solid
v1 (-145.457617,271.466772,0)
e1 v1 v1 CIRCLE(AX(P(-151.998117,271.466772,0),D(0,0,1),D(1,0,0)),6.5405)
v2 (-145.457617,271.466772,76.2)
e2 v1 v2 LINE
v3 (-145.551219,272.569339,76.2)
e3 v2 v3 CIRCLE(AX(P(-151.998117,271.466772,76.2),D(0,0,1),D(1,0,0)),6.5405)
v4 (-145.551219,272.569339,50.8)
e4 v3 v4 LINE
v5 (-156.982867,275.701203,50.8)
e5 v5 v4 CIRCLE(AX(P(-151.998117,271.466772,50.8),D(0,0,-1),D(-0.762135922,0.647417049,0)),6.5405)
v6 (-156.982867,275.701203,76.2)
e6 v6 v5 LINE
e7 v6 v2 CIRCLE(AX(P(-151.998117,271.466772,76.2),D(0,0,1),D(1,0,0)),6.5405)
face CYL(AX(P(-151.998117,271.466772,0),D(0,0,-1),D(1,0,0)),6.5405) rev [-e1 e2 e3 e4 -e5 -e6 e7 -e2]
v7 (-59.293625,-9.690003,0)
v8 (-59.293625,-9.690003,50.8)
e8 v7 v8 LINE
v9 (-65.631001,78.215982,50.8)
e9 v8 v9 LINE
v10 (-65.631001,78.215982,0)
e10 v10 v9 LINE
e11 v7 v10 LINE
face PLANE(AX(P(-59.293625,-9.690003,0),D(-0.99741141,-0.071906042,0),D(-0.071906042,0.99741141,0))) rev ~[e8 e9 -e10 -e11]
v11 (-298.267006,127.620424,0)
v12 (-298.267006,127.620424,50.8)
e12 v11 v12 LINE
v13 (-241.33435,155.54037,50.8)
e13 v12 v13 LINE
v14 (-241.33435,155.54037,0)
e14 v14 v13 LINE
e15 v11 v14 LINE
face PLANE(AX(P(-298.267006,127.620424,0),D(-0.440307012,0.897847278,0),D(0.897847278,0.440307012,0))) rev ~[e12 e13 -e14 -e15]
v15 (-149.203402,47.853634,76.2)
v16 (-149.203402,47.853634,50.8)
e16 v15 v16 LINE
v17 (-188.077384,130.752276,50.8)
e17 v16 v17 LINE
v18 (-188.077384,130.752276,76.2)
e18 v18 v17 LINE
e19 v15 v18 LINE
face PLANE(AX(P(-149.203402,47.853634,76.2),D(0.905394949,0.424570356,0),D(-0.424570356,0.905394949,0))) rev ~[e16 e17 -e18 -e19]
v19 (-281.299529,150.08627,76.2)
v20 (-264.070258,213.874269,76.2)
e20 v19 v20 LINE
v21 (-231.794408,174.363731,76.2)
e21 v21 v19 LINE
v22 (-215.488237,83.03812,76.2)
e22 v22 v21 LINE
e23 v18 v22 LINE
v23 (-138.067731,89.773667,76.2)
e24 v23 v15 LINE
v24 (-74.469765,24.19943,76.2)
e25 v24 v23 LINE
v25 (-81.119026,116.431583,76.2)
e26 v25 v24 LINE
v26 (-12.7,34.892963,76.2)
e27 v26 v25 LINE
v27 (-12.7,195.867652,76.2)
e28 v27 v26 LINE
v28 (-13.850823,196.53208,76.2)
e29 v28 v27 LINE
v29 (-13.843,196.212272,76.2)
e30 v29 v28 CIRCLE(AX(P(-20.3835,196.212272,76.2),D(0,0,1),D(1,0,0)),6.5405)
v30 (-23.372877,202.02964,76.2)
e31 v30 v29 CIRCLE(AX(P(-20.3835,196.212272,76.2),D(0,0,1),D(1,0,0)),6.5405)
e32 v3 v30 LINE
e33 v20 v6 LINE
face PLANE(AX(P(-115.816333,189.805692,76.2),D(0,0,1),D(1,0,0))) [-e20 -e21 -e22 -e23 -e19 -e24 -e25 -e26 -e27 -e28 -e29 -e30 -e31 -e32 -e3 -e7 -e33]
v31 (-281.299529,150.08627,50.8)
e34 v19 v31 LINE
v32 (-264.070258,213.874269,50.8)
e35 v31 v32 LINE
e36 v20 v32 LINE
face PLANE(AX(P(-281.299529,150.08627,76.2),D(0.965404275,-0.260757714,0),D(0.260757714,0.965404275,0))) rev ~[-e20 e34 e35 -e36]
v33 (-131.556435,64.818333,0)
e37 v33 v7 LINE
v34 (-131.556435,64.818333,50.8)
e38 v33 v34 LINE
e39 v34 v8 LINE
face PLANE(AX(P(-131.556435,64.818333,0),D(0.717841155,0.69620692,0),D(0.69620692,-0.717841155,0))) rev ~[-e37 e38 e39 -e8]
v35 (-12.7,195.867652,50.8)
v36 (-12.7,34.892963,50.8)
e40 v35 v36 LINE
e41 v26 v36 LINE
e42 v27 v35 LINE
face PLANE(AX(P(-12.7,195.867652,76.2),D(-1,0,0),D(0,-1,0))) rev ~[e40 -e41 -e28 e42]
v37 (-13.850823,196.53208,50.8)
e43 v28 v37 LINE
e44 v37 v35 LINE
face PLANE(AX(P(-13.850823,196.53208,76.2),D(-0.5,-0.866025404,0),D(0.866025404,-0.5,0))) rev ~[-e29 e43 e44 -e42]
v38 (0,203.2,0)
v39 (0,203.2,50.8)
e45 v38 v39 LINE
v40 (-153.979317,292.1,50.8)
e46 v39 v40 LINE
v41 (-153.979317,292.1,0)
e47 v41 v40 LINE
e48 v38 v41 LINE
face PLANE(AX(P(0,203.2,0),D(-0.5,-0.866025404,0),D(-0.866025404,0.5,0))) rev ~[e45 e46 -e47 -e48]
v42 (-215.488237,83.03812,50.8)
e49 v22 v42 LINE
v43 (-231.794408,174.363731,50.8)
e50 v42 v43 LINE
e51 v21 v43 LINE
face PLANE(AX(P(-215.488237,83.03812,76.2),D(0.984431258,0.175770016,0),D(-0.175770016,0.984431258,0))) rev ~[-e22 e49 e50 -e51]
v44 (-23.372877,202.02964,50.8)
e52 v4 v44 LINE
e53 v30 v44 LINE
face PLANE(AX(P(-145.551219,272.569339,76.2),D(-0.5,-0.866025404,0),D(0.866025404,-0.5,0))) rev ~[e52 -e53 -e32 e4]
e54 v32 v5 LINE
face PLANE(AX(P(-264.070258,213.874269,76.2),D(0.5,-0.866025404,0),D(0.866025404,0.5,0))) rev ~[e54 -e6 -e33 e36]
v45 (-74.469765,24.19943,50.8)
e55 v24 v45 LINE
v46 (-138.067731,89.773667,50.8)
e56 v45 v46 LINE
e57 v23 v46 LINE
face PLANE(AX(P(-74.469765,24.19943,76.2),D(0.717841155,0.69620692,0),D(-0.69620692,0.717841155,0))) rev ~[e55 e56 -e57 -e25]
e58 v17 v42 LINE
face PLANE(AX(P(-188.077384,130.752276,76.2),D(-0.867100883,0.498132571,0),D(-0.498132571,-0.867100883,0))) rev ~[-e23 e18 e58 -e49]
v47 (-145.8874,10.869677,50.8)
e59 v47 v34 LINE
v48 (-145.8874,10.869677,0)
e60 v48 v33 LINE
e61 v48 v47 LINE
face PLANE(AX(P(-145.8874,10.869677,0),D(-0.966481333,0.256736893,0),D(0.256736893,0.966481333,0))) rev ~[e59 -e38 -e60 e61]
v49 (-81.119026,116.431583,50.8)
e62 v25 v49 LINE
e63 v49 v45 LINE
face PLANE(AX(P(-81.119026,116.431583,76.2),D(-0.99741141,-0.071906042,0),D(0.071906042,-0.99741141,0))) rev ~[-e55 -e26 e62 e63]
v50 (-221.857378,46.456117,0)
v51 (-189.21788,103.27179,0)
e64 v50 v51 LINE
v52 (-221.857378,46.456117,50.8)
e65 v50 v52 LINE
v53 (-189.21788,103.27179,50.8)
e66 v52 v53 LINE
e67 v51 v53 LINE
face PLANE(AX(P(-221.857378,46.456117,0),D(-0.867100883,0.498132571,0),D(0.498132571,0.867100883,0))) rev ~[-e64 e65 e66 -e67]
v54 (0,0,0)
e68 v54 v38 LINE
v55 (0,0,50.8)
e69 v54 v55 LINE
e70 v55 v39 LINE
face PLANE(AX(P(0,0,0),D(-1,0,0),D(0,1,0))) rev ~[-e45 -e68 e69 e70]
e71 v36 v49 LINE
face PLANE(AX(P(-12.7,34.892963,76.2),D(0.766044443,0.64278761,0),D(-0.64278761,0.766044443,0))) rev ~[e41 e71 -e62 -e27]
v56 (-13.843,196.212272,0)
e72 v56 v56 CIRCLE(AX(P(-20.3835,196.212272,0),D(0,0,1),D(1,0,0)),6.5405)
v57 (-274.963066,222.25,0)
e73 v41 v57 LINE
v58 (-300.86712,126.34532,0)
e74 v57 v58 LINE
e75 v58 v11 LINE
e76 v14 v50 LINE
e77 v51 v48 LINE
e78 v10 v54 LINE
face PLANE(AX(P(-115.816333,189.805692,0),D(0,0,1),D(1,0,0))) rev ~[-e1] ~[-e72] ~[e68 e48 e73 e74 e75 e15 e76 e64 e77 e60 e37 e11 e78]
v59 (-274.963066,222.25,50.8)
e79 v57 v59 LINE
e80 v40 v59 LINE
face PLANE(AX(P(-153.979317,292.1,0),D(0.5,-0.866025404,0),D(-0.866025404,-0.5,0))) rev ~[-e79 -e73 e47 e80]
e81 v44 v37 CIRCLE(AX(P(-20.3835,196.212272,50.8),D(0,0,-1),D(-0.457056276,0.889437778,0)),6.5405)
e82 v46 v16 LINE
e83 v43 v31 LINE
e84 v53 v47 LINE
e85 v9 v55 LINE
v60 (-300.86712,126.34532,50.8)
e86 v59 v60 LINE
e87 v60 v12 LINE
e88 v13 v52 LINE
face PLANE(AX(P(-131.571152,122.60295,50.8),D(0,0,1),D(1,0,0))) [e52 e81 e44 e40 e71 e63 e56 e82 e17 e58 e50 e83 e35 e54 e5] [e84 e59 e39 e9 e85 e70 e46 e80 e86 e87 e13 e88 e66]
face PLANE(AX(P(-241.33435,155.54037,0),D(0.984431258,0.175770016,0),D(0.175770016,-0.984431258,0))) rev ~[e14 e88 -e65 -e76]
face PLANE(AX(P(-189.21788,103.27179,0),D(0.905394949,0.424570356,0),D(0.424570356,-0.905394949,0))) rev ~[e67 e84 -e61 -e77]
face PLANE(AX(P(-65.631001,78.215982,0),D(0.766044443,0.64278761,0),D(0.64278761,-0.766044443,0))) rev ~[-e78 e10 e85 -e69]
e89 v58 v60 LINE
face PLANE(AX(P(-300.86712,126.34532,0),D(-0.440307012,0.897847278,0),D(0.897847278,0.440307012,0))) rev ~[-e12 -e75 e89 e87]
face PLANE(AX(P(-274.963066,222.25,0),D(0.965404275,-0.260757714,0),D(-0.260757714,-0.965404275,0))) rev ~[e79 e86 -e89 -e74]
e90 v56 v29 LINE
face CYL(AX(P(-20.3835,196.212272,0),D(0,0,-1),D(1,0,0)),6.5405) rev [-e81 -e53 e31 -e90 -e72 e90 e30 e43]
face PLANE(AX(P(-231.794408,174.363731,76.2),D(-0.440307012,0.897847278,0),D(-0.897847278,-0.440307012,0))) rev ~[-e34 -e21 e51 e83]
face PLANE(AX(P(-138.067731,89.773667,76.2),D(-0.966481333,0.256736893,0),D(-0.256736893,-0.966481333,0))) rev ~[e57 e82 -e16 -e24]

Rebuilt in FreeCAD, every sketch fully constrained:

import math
import FreeCAD as App
import Part
import Sketcher

V = App.Vector
Q = App.Units.Quantity


def add_polygon(sketch, points):
    """Adds a closed chain of lines whose ends are joined by coincident constraints."""
    first, n = sketch.GeometryCount, len(points)
    for a, b in zip(points, points[1:] + points[:1]):
        sketch.addGeometry(Part.LineSegment(App.Vector(*a, 0), App.Vector(*b, 0)), False)
    for i in range(n):
        sketch.addConstraint(Sketcher.Constraint("Coincident", first + i, 2, first + (i + 1) % n, 1))

doc = App.newDocument("Part")
body = doc.addObject("PartDesign::Body", "Body")

# Sketch on XY plane
sketch1 = body.newObject("Sketcher::SketchObject", "Sketch")
sketch1.AttachmentSupport = (doc.getObject("XY_Plane"), [""])
sketch1.MapMode = "FlatFace"
add_polygon(sketch1, [(0, 203.2), (-154, 292.1), (-275, 222.2), (-300.9, 126.3), (-298.3, 127.6), (-241.3, 155.5), (-221.9, 46.5), (-189.2, 103.3), (-145.9, 10.9), (-131.6, 64.8), (-59.3, -9.7), (-65.6, 78.2), (0, 0)])  # lines 0-12
sketch1.addGeometry(Part.Circle(V(-20.4, 196.2, 0), V(0, 0, 1), 6.5), False)  # 13
sketch1.addGeometry(Part.Circle(V(-152, 271.5, 0), V(0, 0, 1), 6.5), False)  # 14
sketch1.addConstraint(Sketcher.Constraint("Vertical", 12))
sketch1.addConstraint(Sketcher.Constraint("Coincident", 11, 2, -1, 1))
sketch1.addConstraint(Sketcher.Constraint("Equal", 13, 14))
sketch1.addConstraint(Sketcher.Constraint("Parallel", 3, 4))
sketch1.addConstraint(Sketcher.Constraint("DistanceY", 12, 1, 12, 2, Q("8 in")))
sketch1.addConstraint(Sketcher.Constraint("Distance", 0, Q("7 in")))
sketch1.addConstraint(Sketcher.Constraint("Diameter", 13, Q("0.515 in")))
sketch1.addConstraint(Sketcher.Constraint("Angle", 0, Q("150 deg")))
sketch1.addConstraint(Sketcher.Constraint("Angle", 1, Q("-150 deg")))
sketch1.addConstraint(Sketcher.Constraint("Angle", 11, Q("-50 deg")))
sketch1.addConstraint(Sketcher.Constraint("Distance", 1, Q("5.5 in")))
sketch1.addConstraint(Sketcher.Constraint("DistanceX", 0, 2, 14, 3, Q("0.078 in")))
sketch1.addConstraint(Sketcher.Constraint("DistanceX", 13, 3, -1, 1, Q("0.8025 in")))
sketch1.addConstraint(Sketcher.Constraint("DistanceX", 7, 2, -1, 1, 145.8874))
sketch1.addConstraint(Sketcher.Constraint("DistanceX", 10, 2, -1, 1, 65.631001))
sketch1.addConstraint(Sketcher.Constraint("DistanceY", 13, 3, 14, 3, 75.2545))
sketch1.addConstraint(Sketcher.Constraint("DistanceY", 4, 2, 14, 3, 115.926401))
sketch1.addConstraint(Sketcher.Constraint("Distance", 2, 99.34147))
sketch1.addConstraint(Sketcher.Constraint("Distance", 9, 103.795019))
sketch1.addConstraint(Sketcher.Constraint("DistanceY", -1, 1, 13, 3, 196.212272))
sketch1.addConstraint(Sketcher.Constraint("DistanceX", 2, 2, -1, 1, 300.86712))
sketch1.addConstraint(Sketcher.Constraint("DistanceX", 4, 2, -1, 1, 241.33435))
sketch1.addConstraint(Sketcher.Constraint("DistanceX", 6, 2, -1, 1, 189.21788))
sketch1.addConstraint(Sketcher.Constraint("DistanceY", -1, 1, 6, 2, 103.27179))
sketch1.addConstraint(Sketcher.Constraint("DistanceX", 3, 2, 1, 2, 23.30394))
sketch1.addConstraint(Sketcher.Constraint("DistanceX", 1, 2, 5, 2, 53.105688))
sketch1.addConstraint(Sketcher.Constraint("DistanceY", 7, 2, 5, 2, 35.58644))
sketch1.addConstraint(Sketcher.Constraint("DistanceY", 8, 2, 13, 3, 131.393938))
sketch1.addConstraint(Sketcher.Constraint("DistanceY", 9, 2, 7, 2, 20.55968))
sketch1.addConstraint(Sketcher.Constraint("DistanceX", 8, 2, 9, 2, 72.26281))
sketch1.addConstraint(Sketcher.Constraint("Distance", 8, 55.819657))
pad1 = body.newObject("PartDesign::Pad", "Pad")
pad1.Profile = sketch1
pad1.Length = Q("3 in")

# Sketch on XY plane
sketch2 = body.newObject("Sketcher::SketchObject", "Sketch001")
sketch2.AttachmentSupport = (doc.getObject("XY_Plane"), [""])
sketch2.MapMode = "FlatFace"
sketch2.AttachmentOffset = App.Placement(V(0, 0, 3 * 25.4), App.Rotation())
add_polygon(sketch2, [(0, 0), (0, 203.2), (-154, 292.1), (-275, 222.2), (-300.9, 126.3), (-241.3, 155.5), (-221.9, 46.5), (-189.2, 103.3), (-145.9, 10.9), (-131.6, 64.8), (-59.3, -9.7), (-65.6, 78.2)])  # lines 0-11
sketch2.addGeometry(Part.ArcOfCircle(Part.Circle(V(-20.4, 196.2, 0), V(0, 0, 1), 6.5), math.radians(3), math.radians(117)), False)  # 12
sketch2.addGeometry(Part.LineSegment(V(-13.9, 196.5, 0), V(-12.7, 195.9, 0)), False)  # 13
sketch2.addGeometry(Part.LineSegment(V(-12.7, 195.9, 0), V(-12.7, 34.9, 0)), False)  # 14
sketch2.addGeometry(Part.LineSegment(V(-12.7, 34.9, 0), V(-81.1, 116.4, 0)), False)  # 15
sketch2.addGeometry(Part.LineSegment(V(-81.1, 116.4, 0), V(-74.5, 24.2, 0)), False)  # 16
sketch2.addGeometry(Part.LineSegment(V(-74.5, 24.2, 0), V(-138.1, 89.8, 0)), False)  # 17
sketch2.addGeometry(Part.LineSegment(V(-138.1, 89.8, 0), V(-149.2, 47.9, 0)), False)  # 18
sketch2.addGeometry(Part.LineSegment(V(-149.2, 47.9, 0), V(-188.1, 130.8, 0)), False)  # 19
sketch2.addGeometry(Part.LineSegment(V(-188.1, 130.8, 0), V(-215.5, 83, 0)), False)  # 20
sketch2.addGeometry(Part.LineSegment(V(-215.5, 83, 0), V(-231.8, 174.4, 0)), False)  # 21
sketch2.addGeometry(Part.LineSegment(V(-231.8, 174.4, 0), V(-281.3, 150.1, 0)), False)  # 22
sketch2.addGeometry(Part.LineSegment(V(-281.3, 150.1, 0), V(-264.1, 213.9, 0)), False)  # 23
sketch2.addGeometry(Part.LineSegment(V(-264.1, 213.9, 0), V(-157, 275.7, 0)), False)  # 24
sketch2.addGeometry(Part.ArcOfCircle(Part.Circle(V(-152, 271.5, 0), V(0, 0, 1), 6.5), math.radians(10), math.radians(140)), False)  # 25
sketch2.addGeometry(Part.LineSegment(V(-145.6, 272.6, 0), V(-23.4, 202, 0)), False)  # 26
sketch2.addConstraint(Sketcher.Constraint("Coincident", 12, 1, 13, 1))
sketch2.addConstraint(Sketcher.Constraint("Coincident", 13, 2, 14, 1))
sketch2.addConstraint(Sketcher.Constraint("Coincident", 14, 2, 15, 1))
sketch2.addConstraint(Sketcher.Constraint("Coincident", 15, 2, 16, 1))
sketch2.addConstraint(Sketcher.Constraint("Coincident", 16, 2, 17, 1))
sketch2.addConstraint(Sketcher.Constraint("Coincident", 17, 2, 18, 1))
sketch2.addConstraint(Sketcher.Constraint("Coincident", 18, 2, 19, 1))
sketch2.addConstraint(Sketcher.Constraint("Coincident", 19, 2, 20, 1))
sketch2.addConstraint(Sketcher.Constraint("Coincident", 20, 2, 21, 1))
sketch2.addConstraint(Sketcher.Constraint("Coincident", 21, 2, 22, 1))
sketch2.addConstraint(Sketcher.Constraint("Coincident", 22, 2, 23, 1))
sketch2.addConstraint(Sketcher.Constraint("Coincident", 23, 2, 24, 1))
sketch2.addConstraint(Sketcher.Constraint("Coincident", 24, 2, 25, 2))
sketch2.addConstraint(Sketcher.Constraint("Coincident", 25, 1, 26, 1))
sketch2.addConstraint(Sketcher.Constraint("Coincident", 26, 2, 12, 2))
sketch2.addConstraint(Sketcher.Constraint("Vertical", 0))
sketch2.addConstraint(Sketcher.Constraint("Vertical", 14))
sketch2.addConstraint(Sketcher.Constraint("Coincident", 11, 2, -1, 1))
sketch2.addConstraint(Sketcher.Constraint("Equal", 12, 25))
sketch2.addConstraint(Sketcher.Constraint("Parallel", 1, 13))
sketch2.addConstraint(Sketcher.Constraint("Parallel", 11, 15))
sketch2.addConstraint(Sketcher.Constraint("Parallel", 10, 16))
sketch2.addConstraint(Sketcher.Constraint("Parallel", 9, 17))
sketch2.addConstraint(Sketcher.Constraint("Parallel", 8, 18))
sketch2.addConstraint(Sketcher.Constraint("Parallel", 7, 19))
sketch2.addConstraint(Sketcher.Constraint("Parallel", 6, 20))
sketch2.addConstraint(Sketcher.Constraint("Parallel", 5, 21))
sketch2.addConstraint(Sketcher.Constraint("Parallel", 4, 22))
sketch2.addConstraint(Sketcher.Constraint("Parallel", 3, 23))
sketch2.addConstraint(Sketcher.Constraint("Parallel", 2, 24))
sketch2.addConstraint(Sketcher.Constraint("Parallel", 13, 26))
sketch2.addConstraint(Sketcher.Constraint("DistanceY", 0, 1, 0, 2, Q("8 in")))
sketch2.addConstraint(Sketcher.Constraint("Distance", 1, Q("7 in")))
sketch2.addConstraint(Sketcher.Constraint("Angle", 1, Q("150 deg")))
sketch2.addConstraint(Sketcher.Constraint("Angle", 2, Q("-150 deg")))
sketch2.addConstraint(Sketcher.Constraint("Angle", 11, Q("-50 deg")))
sketch2.addConstraint(Sketcher.Constraint("Distance", 2, Q("5.5 in")))
sketch2.addConstraint(Sketcher.Constraint("DistanceX", 13, 2, -1, 1, Q("0.5 in")))
sketch2.addConstraint(Sketcher.Constraint("Radius", 12, Q("0.2575 in")))
sketch2.addConstraint(Sketcher.Constraint("DistanceX", 1, 2, 25, 3, Q("0.078 in")))
sketch2.addConstraint(Sketcher.Constraint("DistanceX", 12, 3, -1, 1, Q("0.8025 in")))
sketch2.addConstraint(Sketcher.Constraint("Distance", 26, 141.079398))
sketch2.addConstraint(Sketcher.Constraint("DistanceY", 14, 2, 14, 1, 160.974688))
sketch2.addConstraint(Sketcher.Constraint("DistanceX", 7, 2, -1, 1, 145.8874))
sketch2.addConstraint(Sketcher.Constraint("DistanceX", 10, 2, -1, 1, 65.631001))
sketch2.addConstraint(Sketcher.Constraint("DistanceY", 12, 3, 25, 3, 75.2545))
sketch2.addConstraint(Sketcher.Constraint("DistanceY", 4, 2, 25, 3, 115.926401))
sketch2.addConstraint(Sketcher.Constraint("DistanceY", 10, 2, 12, 1, 118.316098))
sketch2.addConstraint(Sketcher.Constraint("DistanceY", 10, 2, 15, 2, 38.215602))
sketch2.addConstraint(Sketcher.Constraint("DistanceY", 18, 2, 8, 2, 16.9647))
sketch2.addConstraint(Sketcher.Constraint("DistanceX", 18, 2, 7, 2, 3.316002))
sketch2.addConstraint(Sketcher.Constraint("DistanceY", 22, 2, 4, 2, 5.4541))
sketch2.addConstraint(Sketcher.Constraint("DistanceY", 4, 2, 23, 2, 58.333899))
sketch2.addConstraint(Sketcher.Constraint("DistanceX", 2, 2, 24, 2, 117.980199))
sketch2.addConstraint(Sketcher.Constraint("Distance", 3, 99.34147))
sketch2.addConstraint(Sketcher.Constraint("Distance", 4, 66.30612))
sketch2.addConstraint(Sketcher.Constraint("Distance", 9, 103.795019))
sketch2.addConstraint(Sketcher.Constraint("Distance", 15, 106.441109))
sketch2.addConstraint(Sketcher.Constraint("Distance", 17, 91.349229))
sketch2.addConstraint(Sketcher.Constraint("Distance", 23, 66.073872))
sketch2.addConstraint(Sketcher.Constraint("DistanceX", 6, 2, -1, 1, 189.21788))
sketch2.addConstraint(Sketcher.Constraint("DistanceY", -1, 1, 6, 2, 103.27179))
sketch2.addConstraint(Sketcher.Constraint("DistanceY", -1, 1, 16, 2, 24.19943))
sketch2.addConstraint(Sketcher.Constraint("DistanceX", 17, 2, -1, 1, 138.067731))
sketch2.addConstraint(Sketcher.Constraint("DistanceY", -1, 1, 20, 2, 83.03812))
sketch2.addConstraint(Sketcher.Constraint("DistanceX", 21, 2, -1, 1, 231.794408))
sketch2.addConstraint(Sketcher.Constraint("DistanceX", 2, 2, 5, 2, 53.105688))
sketch2.addConstraint(Sketcher.Constraint("DistanceY", 7, 2, 5, 2, 35.58644))
sketch2.addConstraint(Sketcher.Constraint("DistanceY", 8, 2, 12, 3, 131.393938))
sketch2.addConstraint(Sketcher.Constraint("DistanceY", 9, 2, 7, 2, 20.55968))
pocket1 = body.newObject("PartDesign::Pocket", "Pocket")
pocket1.Profile = sketch2
pocket1.Length = Q("1 in")

doc.recompute()
